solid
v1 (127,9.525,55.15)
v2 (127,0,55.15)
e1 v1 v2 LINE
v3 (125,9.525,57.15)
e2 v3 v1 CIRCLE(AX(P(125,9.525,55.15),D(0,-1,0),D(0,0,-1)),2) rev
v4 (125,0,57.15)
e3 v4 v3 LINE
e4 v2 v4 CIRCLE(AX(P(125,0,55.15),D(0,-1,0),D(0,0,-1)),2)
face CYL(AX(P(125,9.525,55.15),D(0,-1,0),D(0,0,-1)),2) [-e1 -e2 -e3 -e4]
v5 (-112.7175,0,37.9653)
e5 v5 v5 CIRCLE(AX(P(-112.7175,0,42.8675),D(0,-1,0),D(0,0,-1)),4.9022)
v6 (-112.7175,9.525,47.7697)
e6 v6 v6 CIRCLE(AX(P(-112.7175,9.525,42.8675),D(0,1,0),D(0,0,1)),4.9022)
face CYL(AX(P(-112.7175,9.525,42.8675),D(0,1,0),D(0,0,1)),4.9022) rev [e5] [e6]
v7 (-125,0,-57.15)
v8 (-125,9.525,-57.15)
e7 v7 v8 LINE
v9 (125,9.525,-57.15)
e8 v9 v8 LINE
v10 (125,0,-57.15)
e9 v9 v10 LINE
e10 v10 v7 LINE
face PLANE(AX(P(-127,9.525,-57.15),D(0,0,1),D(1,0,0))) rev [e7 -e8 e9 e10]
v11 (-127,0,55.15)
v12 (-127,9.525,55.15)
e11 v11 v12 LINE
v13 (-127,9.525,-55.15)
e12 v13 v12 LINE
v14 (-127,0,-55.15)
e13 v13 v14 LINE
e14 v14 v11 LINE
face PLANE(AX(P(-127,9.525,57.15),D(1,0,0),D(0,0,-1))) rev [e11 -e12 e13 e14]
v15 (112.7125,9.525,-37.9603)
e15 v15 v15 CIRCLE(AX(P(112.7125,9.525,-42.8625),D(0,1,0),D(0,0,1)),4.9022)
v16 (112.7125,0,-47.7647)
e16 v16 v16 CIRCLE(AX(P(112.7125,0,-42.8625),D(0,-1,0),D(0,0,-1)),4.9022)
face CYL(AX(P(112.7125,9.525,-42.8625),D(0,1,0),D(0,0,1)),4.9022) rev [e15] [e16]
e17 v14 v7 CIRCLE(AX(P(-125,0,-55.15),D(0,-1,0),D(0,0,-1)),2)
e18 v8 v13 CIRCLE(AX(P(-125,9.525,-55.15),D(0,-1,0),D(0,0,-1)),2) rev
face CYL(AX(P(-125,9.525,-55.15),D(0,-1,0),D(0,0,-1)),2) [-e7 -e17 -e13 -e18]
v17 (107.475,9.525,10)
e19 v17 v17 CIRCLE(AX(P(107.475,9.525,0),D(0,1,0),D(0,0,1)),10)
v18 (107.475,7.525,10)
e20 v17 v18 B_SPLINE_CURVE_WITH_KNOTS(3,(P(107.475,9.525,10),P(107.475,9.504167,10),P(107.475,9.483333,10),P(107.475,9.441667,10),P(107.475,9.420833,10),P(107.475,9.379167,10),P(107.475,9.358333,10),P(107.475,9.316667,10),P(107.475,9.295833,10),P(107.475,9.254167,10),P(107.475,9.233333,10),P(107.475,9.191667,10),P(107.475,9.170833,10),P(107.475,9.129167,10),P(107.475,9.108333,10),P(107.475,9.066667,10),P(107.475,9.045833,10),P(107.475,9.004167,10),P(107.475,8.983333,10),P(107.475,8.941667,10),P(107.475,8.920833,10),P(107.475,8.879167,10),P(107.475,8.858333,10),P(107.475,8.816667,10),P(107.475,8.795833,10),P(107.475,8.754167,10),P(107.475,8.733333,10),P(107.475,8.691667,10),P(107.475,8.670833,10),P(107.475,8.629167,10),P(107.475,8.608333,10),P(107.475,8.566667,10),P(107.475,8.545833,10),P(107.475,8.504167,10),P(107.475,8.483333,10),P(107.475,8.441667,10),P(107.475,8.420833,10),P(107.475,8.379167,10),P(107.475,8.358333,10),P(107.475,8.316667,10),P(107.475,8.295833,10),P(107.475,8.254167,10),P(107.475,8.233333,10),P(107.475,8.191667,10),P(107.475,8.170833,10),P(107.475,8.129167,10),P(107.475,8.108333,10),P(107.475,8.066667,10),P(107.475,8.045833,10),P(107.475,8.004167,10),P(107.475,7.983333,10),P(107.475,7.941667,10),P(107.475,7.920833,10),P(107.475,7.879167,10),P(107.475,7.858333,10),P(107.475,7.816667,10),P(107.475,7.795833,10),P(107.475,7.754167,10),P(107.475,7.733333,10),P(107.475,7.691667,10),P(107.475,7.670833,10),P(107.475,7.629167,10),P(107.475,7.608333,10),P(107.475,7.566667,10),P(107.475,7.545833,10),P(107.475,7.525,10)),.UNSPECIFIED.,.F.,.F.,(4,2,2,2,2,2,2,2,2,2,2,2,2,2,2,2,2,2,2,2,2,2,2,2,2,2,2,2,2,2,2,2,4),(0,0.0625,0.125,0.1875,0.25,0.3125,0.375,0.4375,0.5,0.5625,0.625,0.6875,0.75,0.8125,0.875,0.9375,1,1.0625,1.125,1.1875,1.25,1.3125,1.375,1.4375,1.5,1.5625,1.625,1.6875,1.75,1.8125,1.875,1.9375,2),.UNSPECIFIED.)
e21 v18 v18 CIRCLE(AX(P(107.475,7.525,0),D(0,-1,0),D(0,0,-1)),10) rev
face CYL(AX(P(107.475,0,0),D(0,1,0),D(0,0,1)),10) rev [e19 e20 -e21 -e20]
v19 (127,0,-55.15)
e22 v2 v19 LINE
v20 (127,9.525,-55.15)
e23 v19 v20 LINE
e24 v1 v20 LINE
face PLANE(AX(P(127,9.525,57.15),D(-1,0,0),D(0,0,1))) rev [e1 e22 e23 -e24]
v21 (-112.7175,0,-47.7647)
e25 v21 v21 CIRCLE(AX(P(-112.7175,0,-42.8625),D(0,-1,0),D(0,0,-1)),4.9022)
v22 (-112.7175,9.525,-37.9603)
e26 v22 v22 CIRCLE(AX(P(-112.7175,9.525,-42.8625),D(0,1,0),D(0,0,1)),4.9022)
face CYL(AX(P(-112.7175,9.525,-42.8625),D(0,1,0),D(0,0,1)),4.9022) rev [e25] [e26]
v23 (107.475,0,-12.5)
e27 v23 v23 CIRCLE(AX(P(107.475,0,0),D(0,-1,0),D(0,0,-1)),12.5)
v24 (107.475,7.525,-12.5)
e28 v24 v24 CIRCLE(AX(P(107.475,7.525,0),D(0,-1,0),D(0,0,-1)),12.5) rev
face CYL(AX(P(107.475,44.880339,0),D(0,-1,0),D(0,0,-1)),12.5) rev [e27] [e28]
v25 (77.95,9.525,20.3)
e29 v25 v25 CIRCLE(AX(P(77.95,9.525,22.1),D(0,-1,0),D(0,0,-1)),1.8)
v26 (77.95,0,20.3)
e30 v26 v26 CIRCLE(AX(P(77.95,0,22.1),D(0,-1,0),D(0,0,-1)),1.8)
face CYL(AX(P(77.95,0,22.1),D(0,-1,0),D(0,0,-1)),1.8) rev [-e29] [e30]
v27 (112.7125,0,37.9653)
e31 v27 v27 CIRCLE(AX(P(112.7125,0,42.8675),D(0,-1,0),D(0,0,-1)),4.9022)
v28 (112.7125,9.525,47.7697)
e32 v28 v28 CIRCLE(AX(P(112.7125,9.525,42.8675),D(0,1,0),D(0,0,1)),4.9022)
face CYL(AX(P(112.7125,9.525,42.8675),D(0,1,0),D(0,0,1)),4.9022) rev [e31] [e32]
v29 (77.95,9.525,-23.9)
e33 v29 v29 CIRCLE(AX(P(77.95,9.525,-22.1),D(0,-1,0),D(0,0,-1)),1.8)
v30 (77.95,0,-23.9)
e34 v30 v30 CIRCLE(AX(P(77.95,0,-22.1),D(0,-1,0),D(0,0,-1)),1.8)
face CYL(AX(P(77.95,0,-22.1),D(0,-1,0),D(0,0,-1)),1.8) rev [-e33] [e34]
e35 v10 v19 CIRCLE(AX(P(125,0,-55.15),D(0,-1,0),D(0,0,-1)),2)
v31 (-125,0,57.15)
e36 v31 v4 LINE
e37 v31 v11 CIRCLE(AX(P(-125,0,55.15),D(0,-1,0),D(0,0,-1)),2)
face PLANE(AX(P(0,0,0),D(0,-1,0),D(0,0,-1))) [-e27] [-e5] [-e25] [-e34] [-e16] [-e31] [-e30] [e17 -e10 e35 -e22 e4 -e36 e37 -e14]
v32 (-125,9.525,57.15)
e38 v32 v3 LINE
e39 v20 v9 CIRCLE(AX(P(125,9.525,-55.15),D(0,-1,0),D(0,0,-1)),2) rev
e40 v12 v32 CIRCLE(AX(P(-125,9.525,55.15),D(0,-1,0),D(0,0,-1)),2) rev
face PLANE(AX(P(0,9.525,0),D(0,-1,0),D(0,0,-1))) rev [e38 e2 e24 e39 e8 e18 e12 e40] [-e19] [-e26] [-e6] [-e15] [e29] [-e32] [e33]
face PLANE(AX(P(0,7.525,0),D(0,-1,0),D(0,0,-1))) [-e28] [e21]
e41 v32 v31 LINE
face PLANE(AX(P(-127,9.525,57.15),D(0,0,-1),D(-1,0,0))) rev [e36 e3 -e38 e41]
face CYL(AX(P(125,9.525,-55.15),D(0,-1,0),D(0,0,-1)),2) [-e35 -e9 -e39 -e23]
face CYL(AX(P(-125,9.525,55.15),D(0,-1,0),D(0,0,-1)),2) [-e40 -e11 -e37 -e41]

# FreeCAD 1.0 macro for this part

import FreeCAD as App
import Part
import Sketcher

V = App.Vector
Q = App.Units.Quantity


def edges_at(feature, points):
    """Names of the edges that pass closest to the given points."""
    edges = feature.Shape.Edges
    near = lambda p: min(range(len(edges)), key=lambda i: edges[i].distToShape(Part.Vertex(*p))[0])
    return sorted({f"Edge{near(p) + 1}" for p in points})


def add_polygon(sketch, points):
    """Adds a closed chain of lines whose ends are joined by coincident constraints."""
    first, n = sketch.GeometryCount, len(points)
    for a, b in zip(points, points[1:] + points[:1]):
        sketch.addGeometry(Part.LineSegment(App.Vector(*a, 0), App.Vector(*b, 0)), False)
    for i in range(n):
        sketch.addConstraint(Sketcher.Constraint("Coincident", first + i, 2, first + (i + 1) % n, 1))

doc = App.newDocument("Part")
body = doc.addObject("PartDesign::Body", "Body")

sketch1 = body.newObject("Sketcher::SketchObject", "Sketch")
sketch1.AttachmentSupport = (doc.getObject("XZ_Plane"), [""])
sketch1.MapMode = "FlatFace"
add_polygon(sketch1, [(-127, -57), (-127, 57), (127, 57), (127, -57)])
sketch1.addConstraint(Sketcher.Constraint("Vertical", 0))
sketch1.addConstraint(Sketcher.Constraint("Horizontal", 1))
sketch1.addConstraint(Sketcher.Constraint("Vertical", 2))
sketch1.addConstraint(Sketcher.Constraint("Horizontal", 3))
sketch1.addConstraint(Sketcher.Constraint("Symmetric", 0, 2, 2, 2, -1, 1))
sketch1.addConstraint(Sketcher.Constraint("DistanceX", 1, 1, 1, 2, Q("254 mm")))
sketch1.addConstraint(Sketcher.Constraint("DistanceY", 0, 1, 0, 2, Q("114.3 mm")))
pad1 = body.newObject("PartDesign::Pad", "Pad")
pad1.Profile = sketch1
pad1.Length = 9.525
pad1.Reversed = True

sketch2 = body.newObject("Sketcher::SketchObject", "Sketch001")
sketch2.AttachmentSupport = (doc.getObject("XZ_Plane"), [""])
sketch2.MapMode = "FlatFace"
sketch2.AttachmentOffset = App.Placement(V(0, 0, -9.525), App.Rotation())
sketch2.addGeometry(Part.Circle(V(107, 0, 0), V(0, 0, 1), 10), False)
sketch2.addConstraint(Sketcher.Constraint("PointOnObject", 0, 3, -1))
sketch2.addConstraint(Sketcher.Constraint("Diameter", 0, Q("20 mm")))
sketch2.addConstraint(Sketcher.Constraint("DistanceX", -1, 1, 0, 3, Q("107.475 mm")))
pocket1 = body.newObject("PartDesign::Pocket", "Pocket")
pocket1.Profile = sketch2
pocket1.Type = "ThroughAll"
pocket1.Reversed = True

sketch3 = body.newObject("Sketcher::SketchObject", "Sketch002")
sketch3.AttachmentSupport = (doc.getObject("XZ_Plane"), [""])
sketch3.MapMode = "FlatFace"
sketch3.AttachmentOffset = App.Placement(V(0, 0, -9.525), App.Rotation())
sketch3.addGeometry(Part.Circle(V(112.7, -42.9, 0), V(0, 0, 1), 4.9), False)
sketch3.addGeometry(Part.Circle(V(112.7, 42.9, 0), V(0, 0, 1), 4.9), False)
sketch3.addGeometry(Part.Circle(V(-112.7, 42.9, 0), V(0, 0, 1), 4.9), False)
sketch3.addGeometry(Part.Circle(V(-112.7, -42.9, 0), V(0, 0, 1), 4.9), False)
sketch3.addConstraint(Sketcher.Constraint("Equal", 0, 1))
sketch3.addConstraint(Sketcher.Constraint("Equal", 1, 2))
sketch3.addConstraint(Sketcher.Constraint("Equal", 2, 3))
sketch3.addConstraint(Sketcher.Constraint("Horizontal", 1, 3, 2, 3))
sketch3.addConstraint(Sketcher.Constraint("Horizontal", 0, 3, 3, 3))
sketch3.addConstraint(Sketcher.Constraint("Vertical", 0, 3, 1, 3))
sketch3.addConstraint(Sketcher.Constraint("Vertical", 2, 3, 3, 3))
sketch3.addConstraint(Sketcher.Constraint("Diameter", 0, Q("9.8044 mm")))
sketch3.addConstraint(Sketcher.Constraint("DistanceY", 0, 3, 1, 3, Q("85.73 mm")))
sketch3.addConstraint(Sketcher.Constraint("DistanceX", 2, 3, 1, 3, Q("225.43 mm")))
sketch3.addConstraint(Sketcher.Constraint("DistanceX", -1, 1, 0, 3, Q("112.7125 mm")))
sketch3.addConstraint(Sketcher.Constraint("DistanceY", 0, 3, -1, 1, Q("42.8625 mm")))
doc.recompute()
hole = body.newObject("PartDesign::Hole", "Hole")
hole.Profile = sketch3
hole.ThreadType = "None"
hole.Diameter = 9.8044
hole.DepthType = "Dimension"
hole.Depth = 10
hole.DrillPoint = "Angled"
hole.DrillPointAngle = 118
hole.Reversed = True
doc.recompute()

fillet = body.newObject("PartDesign::Fillet", "Fillet")
fillet.Base = (hole, edges_at(hole, [
    (127, 4.763, 57.15),
    (-127, 4.763, 57.15),
    (-127, 4.763, -57.15),
    (127, 4.763, -57.15),
]))
fillet.Radius = 2

sketch4 = body.newObject("Sketcher::SketchObject", "Sketch003")
sketch4.AttachmentSupport = (doc.getObject("XZ_Plane"), [""])
sketch4.MapMode = "FlatFace"
sketch4.addGeometry(Part.Circle(V(78, 22.1, 0), V(0, 0, 1), 1.8), False)
sketch4.addGeometry(Part.Circle(V(78, -22.1, 0), V(0, 0, 1), 1.8), False)
sketch4.addConstraint(Sketcher.Constraint("Equal", 0, 1))
sketch4.addConstraint(Sketcher.Constraint("Symmetric", 0, 3, 1, 3, -1))
sketch4.addConstraint(Sketcher.Constraint("Diameter", 0, Q("3.6 mm")))
sketch4.addConstraint(Sketcher.Constraint("DistanceY", -1, 1, 0, 3, Q("22.1 mm")))
sketch4.addConstraint(Sketcher.Constraint("DistanceX", -1, 1, 0, 3, Q("77.95 mm")))
doc.recompute()
hole2 = body.newObject("PartDesign::Hole", "Hole001")
hole2.Profile = sketch4
hole2.ThreadType = "None"
hole2.Diameter = 3.6
hole2.DepthType = "Dimension"
hole2.Depth = 10
hole2.DrillPoint = "Angled"
hole2.DrillPointAngle = 118

sketch5 = body.newObject("Sketcher::SketchObject", "Sketch004")
sketch5.AttachmentSupport = (doc.getObject("XZ_Plane"), [""])
sketch5.MapMode = "FlatFace"
sketch5.AttachmentOffset = App.Placement(V(0, 0, -7.525), App.Rotation())
sketch5.addGeometry(Part.Circle(V(107, 0, 0), V(0, 0, 1), 12), False)
sketch5.addGeometry(Part.Circle(V(107, 0, 0), V(0, 0, 1), 10), False)
sketch5.addConstraint(Sketcher.Constraint("Coincident", 1, 3, 0, 3))
sketch5.addConstraint(Sketcher.Constraint("PointOnObject", 0, 3, -1))
sketch5.addConstraint(Sketcher.Constraint("Diameter", 0, Q("25 mm")))
sketch5.addConstraint(Sketcher.Constraint("Diameter", 1, Q("20 mm")))
sketch5.addConstraint(Sketcher.Constraint("DistanceX", -1, 1, 0, 3, Q("107.475 mm")))
pocket2 = body.newObject("PartDesign::Pocket", "Pocket001")
pocket2.Profile = sketch5
pocket2.Length = 7.525
pocket2.Reversed = True

doc.recompute()
